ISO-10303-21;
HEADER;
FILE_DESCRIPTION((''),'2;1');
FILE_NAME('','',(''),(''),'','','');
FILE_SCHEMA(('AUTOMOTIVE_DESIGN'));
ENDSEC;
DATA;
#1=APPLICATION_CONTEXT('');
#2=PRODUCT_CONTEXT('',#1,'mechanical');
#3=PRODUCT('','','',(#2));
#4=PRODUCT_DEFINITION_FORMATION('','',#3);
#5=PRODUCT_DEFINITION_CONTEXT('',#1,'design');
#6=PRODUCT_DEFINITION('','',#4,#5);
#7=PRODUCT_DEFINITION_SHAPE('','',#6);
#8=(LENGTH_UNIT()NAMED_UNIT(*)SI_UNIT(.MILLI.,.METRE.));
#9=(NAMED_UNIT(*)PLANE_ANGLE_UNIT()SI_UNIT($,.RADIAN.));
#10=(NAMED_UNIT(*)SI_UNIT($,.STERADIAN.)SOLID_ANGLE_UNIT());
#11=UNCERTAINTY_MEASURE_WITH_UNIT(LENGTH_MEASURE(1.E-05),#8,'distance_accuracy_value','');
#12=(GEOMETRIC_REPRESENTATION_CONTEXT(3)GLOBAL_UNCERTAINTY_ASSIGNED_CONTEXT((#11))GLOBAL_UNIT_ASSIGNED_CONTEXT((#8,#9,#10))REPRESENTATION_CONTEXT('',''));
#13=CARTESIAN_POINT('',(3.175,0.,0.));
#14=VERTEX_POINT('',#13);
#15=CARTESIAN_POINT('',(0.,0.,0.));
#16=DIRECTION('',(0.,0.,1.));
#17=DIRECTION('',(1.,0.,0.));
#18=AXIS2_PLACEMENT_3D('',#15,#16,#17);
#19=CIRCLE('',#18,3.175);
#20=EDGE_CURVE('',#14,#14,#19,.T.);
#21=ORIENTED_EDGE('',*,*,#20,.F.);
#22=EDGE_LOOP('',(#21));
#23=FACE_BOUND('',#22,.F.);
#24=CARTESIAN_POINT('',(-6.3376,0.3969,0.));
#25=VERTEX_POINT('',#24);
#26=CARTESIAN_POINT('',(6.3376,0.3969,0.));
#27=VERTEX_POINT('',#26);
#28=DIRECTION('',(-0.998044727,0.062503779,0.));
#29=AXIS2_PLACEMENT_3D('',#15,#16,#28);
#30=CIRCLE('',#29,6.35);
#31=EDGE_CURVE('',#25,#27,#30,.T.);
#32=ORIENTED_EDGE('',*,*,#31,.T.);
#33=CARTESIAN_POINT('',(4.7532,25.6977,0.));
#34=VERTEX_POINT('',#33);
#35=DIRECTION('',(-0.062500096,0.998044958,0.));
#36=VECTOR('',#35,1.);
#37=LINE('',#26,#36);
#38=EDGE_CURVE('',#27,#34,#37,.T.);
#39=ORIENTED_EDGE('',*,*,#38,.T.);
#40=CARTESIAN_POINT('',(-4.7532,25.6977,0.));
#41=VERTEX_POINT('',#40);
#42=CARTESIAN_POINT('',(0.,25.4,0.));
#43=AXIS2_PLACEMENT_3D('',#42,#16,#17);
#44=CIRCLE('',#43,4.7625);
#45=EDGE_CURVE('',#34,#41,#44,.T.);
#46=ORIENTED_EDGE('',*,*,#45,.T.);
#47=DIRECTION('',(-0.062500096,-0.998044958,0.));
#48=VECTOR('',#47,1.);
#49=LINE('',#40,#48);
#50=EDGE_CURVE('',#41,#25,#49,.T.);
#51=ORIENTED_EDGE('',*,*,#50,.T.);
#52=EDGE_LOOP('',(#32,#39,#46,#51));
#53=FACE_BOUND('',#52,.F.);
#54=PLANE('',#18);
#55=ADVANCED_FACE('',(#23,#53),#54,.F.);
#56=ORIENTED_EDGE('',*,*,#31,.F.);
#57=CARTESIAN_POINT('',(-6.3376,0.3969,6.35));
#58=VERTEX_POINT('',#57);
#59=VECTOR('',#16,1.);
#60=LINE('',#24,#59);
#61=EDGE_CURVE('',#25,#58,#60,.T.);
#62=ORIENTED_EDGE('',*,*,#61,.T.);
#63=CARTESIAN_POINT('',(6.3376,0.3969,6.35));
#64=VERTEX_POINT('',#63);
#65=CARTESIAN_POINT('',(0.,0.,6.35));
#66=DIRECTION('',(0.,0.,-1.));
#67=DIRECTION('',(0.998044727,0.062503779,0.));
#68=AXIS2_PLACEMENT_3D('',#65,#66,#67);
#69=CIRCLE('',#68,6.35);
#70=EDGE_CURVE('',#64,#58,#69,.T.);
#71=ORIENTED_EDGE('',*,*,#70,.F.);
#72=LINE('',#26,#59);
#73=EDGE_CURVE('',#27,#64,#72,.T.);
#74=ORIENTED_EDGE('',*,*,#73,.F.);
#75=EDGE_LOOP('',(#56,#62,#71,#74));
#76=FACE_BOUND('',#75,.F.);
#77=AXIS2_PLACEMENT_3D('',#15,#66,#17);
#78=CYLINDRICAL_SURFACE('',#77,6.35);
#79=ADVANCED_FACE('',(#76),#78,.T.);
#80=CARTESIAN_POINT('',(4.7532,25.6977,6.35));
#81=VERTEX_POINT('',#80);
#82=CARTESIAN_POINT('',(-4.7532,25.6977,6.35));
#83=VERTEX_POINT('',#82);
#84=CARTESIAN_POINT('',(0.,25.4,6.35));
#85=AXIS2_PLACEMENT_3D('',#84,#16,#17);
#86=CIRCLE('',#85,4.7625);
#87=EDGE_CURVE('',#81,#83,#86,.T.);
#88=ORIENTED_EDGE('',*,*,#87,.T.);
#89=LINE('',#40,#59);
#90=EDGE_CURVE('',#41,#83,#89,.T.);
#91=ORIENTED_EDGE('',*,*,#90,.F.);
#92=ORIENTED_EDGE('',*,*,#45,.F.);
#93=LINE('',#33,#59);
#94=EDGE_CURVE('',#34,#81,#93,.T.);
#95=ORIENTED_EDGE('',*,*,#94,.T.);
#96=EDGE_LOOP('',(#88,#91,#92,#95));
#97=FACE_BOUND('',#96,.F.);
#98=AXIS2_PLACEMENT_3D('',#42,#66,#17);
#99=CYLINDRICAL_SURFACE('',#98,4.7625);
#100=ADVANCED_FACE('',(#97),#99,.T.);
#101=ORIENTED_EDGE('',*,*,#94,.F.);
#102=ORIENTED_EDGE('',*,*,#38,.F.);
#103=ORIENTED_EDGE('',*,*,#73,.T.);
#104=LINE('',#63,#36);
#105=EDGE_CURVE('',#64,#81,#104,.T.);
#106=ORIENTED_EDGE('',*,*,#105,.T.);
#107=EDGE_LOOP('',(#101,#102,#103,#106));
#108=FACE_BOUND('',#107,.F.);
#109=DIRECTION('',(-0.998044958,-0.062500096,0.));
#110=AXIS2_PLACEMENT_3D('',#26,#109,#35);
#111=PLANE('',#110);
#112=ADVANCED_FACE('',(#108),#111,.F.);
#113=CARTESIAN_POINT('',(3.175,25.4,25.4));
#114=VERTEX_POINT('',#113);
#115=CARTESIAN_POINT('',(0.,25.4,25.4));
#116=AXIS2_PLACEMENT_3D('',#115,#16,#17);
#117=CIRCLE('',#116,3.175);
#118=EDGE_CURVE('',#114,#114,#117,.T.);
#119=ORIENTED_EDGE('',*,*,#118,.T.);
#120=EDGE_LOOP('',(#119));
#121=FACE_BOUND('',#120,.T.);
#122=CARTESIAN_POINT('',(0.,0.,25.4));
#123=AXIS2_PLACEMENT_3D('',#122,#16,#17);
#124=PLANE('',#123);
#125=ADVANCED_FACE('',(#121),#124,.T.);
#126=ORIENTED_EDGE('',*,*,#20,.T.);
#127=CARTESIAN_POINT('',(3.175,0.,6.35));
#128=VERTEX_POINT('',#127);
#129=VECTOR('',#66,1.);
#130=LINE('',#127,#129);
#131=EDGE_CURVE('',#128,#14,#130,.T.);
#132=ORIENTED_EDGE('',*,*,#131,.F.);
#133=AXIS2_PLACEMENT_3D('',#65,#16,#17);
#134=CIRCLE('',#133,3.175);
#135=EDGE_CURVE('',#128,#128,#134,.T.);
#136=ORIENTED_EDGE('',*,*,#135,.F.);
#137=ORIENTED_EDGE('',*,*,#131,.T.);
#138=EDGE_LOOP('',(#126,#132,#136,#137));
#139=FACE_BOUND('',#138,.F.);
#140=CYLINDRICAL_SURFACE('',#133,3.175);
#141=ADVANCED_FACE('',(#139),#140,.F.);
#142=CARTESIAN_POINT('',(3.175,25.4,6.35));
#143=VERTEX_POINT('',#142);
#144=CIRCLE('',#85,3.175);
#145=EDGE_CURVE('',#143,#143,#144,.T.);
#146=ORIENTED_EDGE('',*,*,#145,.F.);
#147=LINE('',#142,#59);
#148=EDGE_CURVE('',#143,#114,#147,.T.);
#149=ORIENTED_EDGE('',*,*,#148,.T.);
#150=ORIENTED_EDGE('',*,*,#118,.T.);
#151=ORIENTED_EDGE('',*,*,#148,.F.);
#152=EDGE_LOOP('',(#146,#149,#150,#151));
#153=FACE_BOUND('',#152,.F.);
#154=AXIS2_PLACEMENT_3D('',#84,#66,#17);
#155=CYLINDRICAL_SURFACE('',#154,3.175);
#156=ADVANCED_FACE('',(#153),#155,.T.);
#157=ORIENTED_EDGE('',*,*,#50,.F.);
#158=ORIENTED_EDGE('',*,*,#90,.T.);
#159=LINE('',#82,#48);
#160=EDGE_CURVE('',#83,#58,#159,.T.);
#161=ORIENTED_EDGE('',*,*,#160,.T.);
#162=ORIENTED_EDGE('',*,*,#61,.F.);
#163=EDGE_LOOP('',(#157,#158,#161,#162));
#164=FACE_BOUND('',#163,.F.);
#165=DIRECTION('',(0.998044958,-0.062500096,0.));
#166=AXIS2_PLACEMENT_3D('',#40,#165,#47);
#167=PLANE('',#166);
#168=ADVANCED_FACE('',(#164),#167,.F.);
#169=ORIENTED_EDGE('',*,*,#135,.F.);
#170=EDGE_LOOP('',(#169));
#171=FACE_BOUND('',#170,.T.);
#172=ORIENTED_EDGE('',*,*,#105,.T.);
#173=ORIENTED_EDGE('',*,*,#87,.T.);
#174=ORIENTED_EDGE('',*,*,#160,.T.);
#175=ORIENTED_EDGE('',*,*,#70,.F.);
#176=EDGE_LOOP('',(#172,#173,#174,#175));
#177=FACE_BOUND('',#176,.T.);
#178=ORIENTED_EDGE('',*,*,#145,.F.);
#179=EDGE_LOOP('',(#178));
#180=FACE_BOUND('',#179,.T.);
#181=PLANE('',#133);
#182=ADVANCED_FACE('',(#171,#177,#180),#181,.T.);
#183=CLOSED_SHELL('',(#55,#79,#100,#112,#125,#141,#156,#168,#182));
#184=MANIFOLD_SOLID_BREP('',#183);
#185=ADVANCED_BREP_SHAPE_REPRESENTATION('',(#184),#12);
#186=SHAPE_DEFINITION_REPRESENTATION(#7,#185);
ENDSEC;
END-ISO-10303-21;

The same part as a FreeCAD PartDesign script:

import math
import FreeCAD as App
import Part
import Sketcher
from FreeCAD import Vector
Q = App.Units.Quantity

doc = App.newDocument("Part")
params = doc.addObject("Spreadsheet::Sheet", "Params")
for row, (alias, value) in enumerate([
    ("sketch1_radius", "0.25 in"),
    ("sketch1_radius2", "0.1875 in"),
    ("pad1_length", "0.25 in"),
    ("sketch2_diameter", "0.25 in"),
    ("sketch3_diameter", "0.25 in"),
    ("pad2_length", "0.75 in"),
], start=1):
    params.set(f"A{row}", alias)
    params.set(f"B{row}", "=" + value)
    params.setAlias(f"B{row}", alias)

body = doc.addObject("PartDesign::Body", "Body")

# Sketch on XY plane
sketch1 = body.newObject("Sketcher::SketchObject", "Sketch")
sketch1.AttachmentSupport = (doc.getObject("XY_Plane"), [""])
sketch1.MapMode = "FlatFace"
sketch1.addGeometry([
    Part.ArcOfCircle(Part.Circle(Vector(0, 0, 0), Vector(0, 0, 1), 6.3), math.radians(176), math.radians(364)),
    Part.LineSegment(Vector(6.3, 0.4, 0), Vector(4.8, 25.7, 0)),
    Part.ArcOfCircle(Part.Circle(Vector(0, 25.4, 0), Vector(0, 0, 1), 4.8), math.radians(4), math.radians(176)),
    Part.LineSegment(Vector(-4.8, 25.7, 0), Vector(-6.3, 0.4, 0)),
], False)
sketch1.addConstraint([
    Sketcher.Constraint("Tangent", 0, 2, 1, 1),
    Sketcher.Constraint("Tangent", 1, 2, 2, 1),
    Sketcher.Constraint("Tangent", 2, 2, 3, 1),
    Sketcher.Constraint("Tangent", 3, 2, 0, 1),
    Sketcher.Constraint("Coincident", 0, 3, -1, 1),
    Sketcher.Constraint("PointOnObject", 2, 3, -2),
    Sketcher.Constraint("Radius", 0, Q("0.25 in")),
    Sketcher.Constraint("DistanceY", -1, 1, 2, 3, Q("1 in")),
    Sketcher.Constraint("Radius", 2, Q("0.1875 in")),
])
sketch1.setExpression("Constraints[6]", "Params.sketch1_radius")
sketch1.setExpression("Constraints[8]", "Params.sketch1_radius2")
pad1 = body.newObject("PartDesign::Pad", "Pad")
pad1.Profile = sketch1
pad1.setExpression("Length", "Params.pad1_length")

# Sketch on XY plane
sketch2 = body.newObject("Sketcher::SketchObject", "Sketch001")
sketch2.AttachmentSupport = (doc.getObject("XY_Plane"), [""])
sketch2.MapMode = "FlatFace"
sketch2.AttachmentOffset = App.Placement(Vector(0, 0, 0.25 * 25.4), App.Rotation())
sketch2.addGeometry(Part.Circle(Vector(0, 0, 0), Vector(0, 0, 1), 3.2), False)
sketch2.addConstraint([
    Sketcher.Constraint("Coincident", 0, 3, -1, 1),
    Sketcher.Constraint("Diameter", 0, Q("0.25 in")),
])
sketch2.setExpression("Constraints[1]", "Params.sketch2_diameter")
pocket1 = body.newObject("PartDesign::Pocket", "Pocket")
pocket1.Profile = sketch2
pocket1.Type = "ThroughAll"

# Sketch on XY plane
sketch3 = body.newObject("Sketcher::SketchObject", "Sketch002")
sketch3.AttachmentSupport = (doc.getObject("XY_Plane"), [""])
sketch3.MapMode = "FlatFace"
sketch3.AttachmentOffset = App.Placement(Vector(0, 0, 0.25 * 25.4), App.Rotation())
sketch3.addGeometry(Part.Circle(Vector(0, 25.4, 0), Vector(0, 0, 1), 3.2), False)
sketch3.addConstraint([
    Sketcher.Constraint("PointOnObject", 0, 3, -2),
    Sketcher.Constraint("Diameter", 0, Q("0.25 in")),
    Sketcher.Constraint("DistanceY", -1, 1, 0, 3, Q("1 in")),
])
sketch3.setExpression("Constraints[1]", "Params.sketch3_diameter")
pad2 = body.newObject("PartDesign::Pad", "Pad001")
pad2.Profile = sketch3
pad2.setExpression("Length", "Params.pad2_length")

doc.recompute()
